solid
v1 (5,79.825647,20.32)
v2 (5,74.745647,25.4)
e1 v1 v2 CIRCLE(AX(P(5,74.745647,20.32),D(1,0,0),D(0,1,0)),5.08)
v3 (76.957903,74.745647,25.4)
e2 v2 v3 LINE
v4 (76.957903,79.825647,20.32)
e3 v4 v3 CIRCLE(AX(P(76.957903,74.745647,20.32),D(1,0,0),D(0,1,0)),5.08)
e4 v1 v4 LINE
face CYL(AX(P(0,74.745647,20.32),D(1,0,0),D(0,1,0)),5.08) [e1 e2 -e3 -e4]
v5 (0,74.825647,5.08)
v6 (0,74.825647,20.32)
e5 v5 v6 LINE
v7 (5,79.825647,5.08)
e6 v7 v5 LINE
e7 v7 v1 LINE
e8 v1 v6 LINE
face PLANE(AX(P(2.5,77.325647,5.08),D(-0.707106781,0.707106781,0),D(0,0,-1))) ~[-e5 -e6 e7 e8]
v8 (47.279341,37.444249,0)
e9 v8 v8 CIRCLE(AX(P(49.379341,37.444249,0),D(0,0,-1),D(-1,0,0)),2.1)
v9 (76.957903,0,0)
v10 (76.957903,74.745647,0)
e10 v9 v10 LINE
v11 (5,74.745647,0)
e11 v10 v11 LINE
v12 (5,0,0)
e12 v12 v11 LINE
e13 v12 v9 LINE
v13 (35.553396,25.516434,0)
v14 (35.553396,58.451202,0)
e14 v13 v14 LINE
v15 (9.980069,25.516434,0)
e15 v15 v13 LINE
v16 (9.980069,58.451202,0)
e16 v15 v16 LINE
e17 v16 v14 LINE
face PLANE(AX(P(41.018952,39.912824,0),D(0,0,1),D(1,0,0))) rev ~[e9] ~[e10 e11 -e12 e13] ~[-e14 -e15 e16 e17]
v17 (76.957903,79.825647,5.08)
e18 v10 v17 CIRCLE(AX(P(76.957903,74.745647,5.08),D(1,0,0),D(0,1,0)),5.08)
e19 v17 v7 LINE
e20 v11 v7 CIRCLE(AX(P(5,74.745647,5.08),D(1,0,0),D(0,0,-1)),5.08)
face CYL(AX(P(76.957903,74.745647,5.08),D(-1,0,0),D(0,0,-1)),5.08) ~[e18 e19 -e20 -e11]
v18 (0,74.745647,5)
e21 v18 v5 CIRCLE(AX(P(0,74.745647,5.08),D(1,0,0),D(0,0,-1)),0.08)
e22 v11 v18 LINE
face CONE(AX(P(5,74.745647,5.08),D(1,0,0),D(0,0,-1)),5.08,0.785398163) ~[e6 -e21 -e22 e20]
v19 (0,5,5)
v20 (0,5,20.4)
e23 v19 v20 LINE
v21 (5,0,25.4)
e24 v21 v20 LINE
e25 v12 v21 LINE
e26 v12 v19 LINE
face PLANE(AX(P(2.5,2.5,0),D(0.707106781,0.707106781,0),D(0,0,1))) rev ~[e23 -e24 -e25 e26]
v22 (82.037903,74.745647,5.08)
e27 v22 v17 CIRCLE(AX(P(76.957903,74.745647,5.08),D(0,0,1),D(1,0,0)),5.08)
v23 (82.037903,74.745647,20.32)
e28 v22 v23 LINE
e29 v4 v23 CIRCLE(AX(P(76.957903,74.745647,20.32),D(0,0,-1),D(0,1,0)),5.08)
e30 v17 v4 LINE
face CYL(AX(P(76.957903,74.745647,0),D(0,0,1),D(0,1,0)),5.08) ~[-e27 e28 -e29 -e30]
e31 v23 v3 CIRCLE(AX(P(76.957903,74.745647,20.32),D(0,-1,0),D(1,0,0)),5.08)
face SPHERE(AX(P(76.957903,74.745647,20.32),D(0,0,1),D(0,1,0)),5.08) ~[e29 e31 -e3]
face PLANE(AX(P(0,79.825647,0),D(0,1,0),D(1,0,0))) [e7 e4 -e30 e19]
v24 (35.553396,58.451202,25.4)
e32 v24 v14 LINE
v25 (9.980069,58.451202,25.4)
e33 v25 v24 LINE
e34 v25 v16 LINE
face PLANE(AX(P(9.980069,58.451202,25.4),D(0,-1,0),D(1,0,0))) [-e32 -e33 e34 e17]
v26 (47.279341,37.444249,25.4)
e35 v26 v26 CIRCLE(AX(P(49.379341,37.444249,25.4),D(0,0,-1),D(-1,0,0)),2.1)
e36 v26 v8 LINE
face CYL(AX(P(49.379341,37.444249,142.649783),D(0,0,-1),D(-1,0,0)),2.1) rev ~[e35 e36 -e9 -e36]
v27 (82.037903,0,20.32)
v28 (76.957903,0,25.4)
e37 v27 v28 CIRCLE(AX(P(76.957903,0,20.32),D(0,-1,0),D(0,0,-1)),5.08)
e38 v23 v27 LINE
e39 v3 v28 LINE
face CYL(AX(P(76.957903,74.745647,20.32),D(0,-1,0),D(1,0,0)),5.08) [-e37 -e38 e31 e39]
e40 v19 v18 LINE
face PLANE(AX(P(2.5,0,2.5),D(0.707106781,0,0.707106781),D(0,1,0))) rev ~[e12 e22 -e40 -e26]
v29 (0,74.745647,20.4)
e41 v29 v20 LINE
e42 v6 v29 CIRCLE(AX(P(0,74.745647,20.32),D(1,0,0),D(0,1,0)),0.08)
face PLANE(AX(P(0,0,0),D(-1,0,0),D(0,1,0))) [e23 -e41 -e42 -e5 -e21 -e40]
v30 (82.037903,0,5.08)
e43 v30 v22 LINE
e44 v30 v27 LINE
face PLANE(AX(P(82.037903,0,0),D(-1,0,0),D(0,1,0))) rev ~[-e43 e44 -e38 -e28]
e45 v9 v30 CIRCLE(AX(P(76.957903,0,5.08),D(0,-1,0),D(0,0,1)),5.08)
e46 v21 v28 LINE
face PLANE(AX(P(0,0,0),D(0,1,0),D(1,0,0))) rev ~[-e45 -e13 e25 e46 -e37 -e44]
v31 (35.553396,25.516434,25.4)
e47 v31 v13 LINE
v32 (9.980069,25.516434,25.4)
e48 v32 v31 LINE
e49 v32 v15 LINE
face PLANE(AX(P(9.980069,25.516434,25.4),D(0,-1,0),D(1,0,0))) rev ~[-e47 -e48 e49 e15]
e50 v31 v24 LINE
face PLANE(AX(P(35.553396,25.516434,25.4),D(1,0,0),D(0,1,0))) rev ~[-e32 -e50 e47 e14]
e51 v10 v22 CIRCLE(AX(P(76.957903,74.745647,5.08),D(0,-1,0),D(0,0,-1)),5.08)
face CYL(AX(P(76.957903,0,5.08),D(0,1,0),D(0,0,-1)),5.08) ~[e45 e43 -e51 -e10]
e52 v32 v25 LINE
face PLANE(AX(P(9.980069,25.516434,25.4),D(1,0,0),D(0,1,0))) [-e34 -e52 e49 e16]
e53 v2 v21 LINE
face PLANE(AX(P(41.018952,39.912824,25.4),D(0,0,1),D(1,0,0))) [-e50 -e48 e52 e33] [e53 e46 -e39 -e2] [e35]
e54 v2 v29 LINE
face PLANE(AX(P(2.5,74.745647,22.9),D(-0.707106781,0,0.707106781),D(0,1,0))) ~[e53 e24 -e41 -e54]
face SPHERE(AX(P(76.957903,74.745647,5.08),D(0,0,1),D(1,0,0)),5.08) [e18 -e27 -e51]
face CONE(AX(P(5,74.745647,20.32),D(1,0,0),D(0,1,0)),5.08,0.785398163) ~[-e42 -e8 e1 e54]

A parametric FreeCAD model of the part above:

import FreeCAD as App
import Part
import Sketcher
Q = App.Units.Quantity


def edges_at(feature, points):
    """Names of the edges that pass closest to the given points."""
    edges = feature.Shape.Edges
    near = lambda p: min(range(len(edges)), key=lambda i: edges[i].distToShape(Part.Vertex(*p))[0])
    return sorted({f"Edge{near(p) + 1}" for p in points})


def add_polygon(sketch, points):
    """Adds a closed chain of lines whose ends are joined by coincident constraints."""
    first, n = sketch.GeometryCount, len(points)
    for a, b in zip(points, points[1:] + points[:1]):
        sketch.addGeometry(Part.LineSegment(App.Vector(*a, 0), App.Vector(*b, 0)), False)
    for i in range(n):
        sketch.addConstraint(Sketcher.Constraint("Coincident", first + i, 2, first + (i + 1) % n, 1))

doc = App.newDocument("Part")
body = doc.addObject("PartDesign::Body", "Body")

# Sketch on XY plane
sketch1 = body.newObject("Sketcher::SketchObject", "Sketch")
sketch1.AttachmentSupport = (doc.getObject("XY_Plane"), [""])
sketch1.MapMode = "FlatFace"
add_polygon(sketch1, [(0, 80), (0, 0), (82, 0), (82, 80)])  # lines 0-3
sketch1.addConstraint([
    Sketcher.Constraint("Vertical", 0),
    Sketcher.Constraint("Horizontal", 1),
    Sketcher.Constraint("Vertical", 2),
    Sketcher.Constraint("Horizontal", 3),
    Sketcher.Constraint("Coincident", 0, 2, -1, 1),
    Sketcher.Constraint("DistanceX", 1, 1, 1, 2, Q("82.037903 mm")),
    Sketcher.Constraint("DistanceY", 0, 2, 0, 1, Q("79.825647 mm")),
])
pad1 = body.newObject("PartDesign::Pad", "Pad")
pad1.Profile = sketch1
pad1.Length = 25.4

# Sketch on XY plane
sketch2 = body.newObject("Sketcher::SketchObject", "Sketch001")
sketch2.AttachmentSupport = (doc.getObject("XY_Plane"), [""])
sketch2.MapMode = "FlatFace"
sketch2.AttachmentOffset = App.Placement(App.Vector(0, 0, 25.4), App.Rotation())
sketch2.addGeometry(Part.Circle(App.Vector(49.4, 37.4, 0), App.Vector(0, 0, 1), 2.1), False)
sketch2.addConstraint([
    Sketcher.Constraint("Diameter", 0, Q("4.2 mm")),
    Sketcher.Constraint("DistanceX", -1, 1, 0, 3, Q("49.379341 mm")),
    Sketcher.Constraint("DistanceY", -1, 1, 0, 3, Q("37.444249 mm")),
])
doc.recompute()
hole = body.newObject("PartDesign::Hole", "Hole")
hole.Profile = sketch2
hole.ThreadType = "None"
hole.Diameter = 4.2
hole.DepthType = "ThroughAll"
doc.recompute()

fillet = body.newObject("PartDesign::Fillet", "Fillet")
fillet.Base = (hole, edges_at(hole, [(82.038, 79.826, 12.7)]))
fillet.Radius = 5.08
doc.recompute()

fillet2 = body.newObject("PartDesign::Fillet", "Fillet001")
fillet2.Base = (fillet, edges_at(fillet, [(82.038, 37.373, 0)]))
fillet2.Radius = 5.08
doc.recompute()

fillet3 = body.newObject("PartDesign::Fillet", "Fillet002")
fillet3.Base = (fillet2, edges_at(fillet2, [(38.479, 79.826, 25.4)]))
fillet3.Radius = 5.08

# Sketch on XY plane
sketch3 = body.newObject("Sketcher::SketchObject", "Sketch002")
sketch3.AttachmentSupport = (doc.getObject("XY_Plane"), [""])
sketch3.MapMode = "FlatFace"
sketch3.AttachmentOffset = App.Placement(App.Vector(0, 0, 25.4), App.Rotation())
add_polygon(sketch3, [(10, 58), (10, 26), (36, 26), (36, 58)])  # lines 0-3
sketch3.addConstraint([
    Sketcher.Constraint("Vertical", 0),
    Sketcher.Constraint("Horizontal", 1),
    Sketcher.Constraint("Vertical", 2),
    Sketcher.Constraint("Horizontal", 3),
    Sketcher.Constraint("DistanceY", 0, 2, 0, 1, Q("32.934768 mm")),
    Sketcher.Constraint("DistanceY", -1, 1, 2, 2, Q("58.451202 mm")),
    Sketcher.Constraint("DistanceX", 1, 1, 1, 2, Q("25.573327 mm")),
    Sketcher.Constraint("DistanceX", -1, 1, 0, 2, Q("9.980069 mm")),
])
pocket1 = body.newObject("PartDesign::Pocket", "Pocket")
pocket1.Profile = sketch3
pocket1.Length = 25.4
doc.recompute()

chamfer = body.newObject("PartDesign::Chamfer", "Chamfer")
chamfer.Base = (pocket1, edges_at(pocket1, [
    (0, 79.826, 12.7),
    (0, 78.338, 23.912),
    (0, 78.338, 1.488),
    (0, 37.373, 25.4),
    (0, 37.373, 0),
    (0, 0, 12.7),
]))
chamfer.Size = 5

doc.recompute()
